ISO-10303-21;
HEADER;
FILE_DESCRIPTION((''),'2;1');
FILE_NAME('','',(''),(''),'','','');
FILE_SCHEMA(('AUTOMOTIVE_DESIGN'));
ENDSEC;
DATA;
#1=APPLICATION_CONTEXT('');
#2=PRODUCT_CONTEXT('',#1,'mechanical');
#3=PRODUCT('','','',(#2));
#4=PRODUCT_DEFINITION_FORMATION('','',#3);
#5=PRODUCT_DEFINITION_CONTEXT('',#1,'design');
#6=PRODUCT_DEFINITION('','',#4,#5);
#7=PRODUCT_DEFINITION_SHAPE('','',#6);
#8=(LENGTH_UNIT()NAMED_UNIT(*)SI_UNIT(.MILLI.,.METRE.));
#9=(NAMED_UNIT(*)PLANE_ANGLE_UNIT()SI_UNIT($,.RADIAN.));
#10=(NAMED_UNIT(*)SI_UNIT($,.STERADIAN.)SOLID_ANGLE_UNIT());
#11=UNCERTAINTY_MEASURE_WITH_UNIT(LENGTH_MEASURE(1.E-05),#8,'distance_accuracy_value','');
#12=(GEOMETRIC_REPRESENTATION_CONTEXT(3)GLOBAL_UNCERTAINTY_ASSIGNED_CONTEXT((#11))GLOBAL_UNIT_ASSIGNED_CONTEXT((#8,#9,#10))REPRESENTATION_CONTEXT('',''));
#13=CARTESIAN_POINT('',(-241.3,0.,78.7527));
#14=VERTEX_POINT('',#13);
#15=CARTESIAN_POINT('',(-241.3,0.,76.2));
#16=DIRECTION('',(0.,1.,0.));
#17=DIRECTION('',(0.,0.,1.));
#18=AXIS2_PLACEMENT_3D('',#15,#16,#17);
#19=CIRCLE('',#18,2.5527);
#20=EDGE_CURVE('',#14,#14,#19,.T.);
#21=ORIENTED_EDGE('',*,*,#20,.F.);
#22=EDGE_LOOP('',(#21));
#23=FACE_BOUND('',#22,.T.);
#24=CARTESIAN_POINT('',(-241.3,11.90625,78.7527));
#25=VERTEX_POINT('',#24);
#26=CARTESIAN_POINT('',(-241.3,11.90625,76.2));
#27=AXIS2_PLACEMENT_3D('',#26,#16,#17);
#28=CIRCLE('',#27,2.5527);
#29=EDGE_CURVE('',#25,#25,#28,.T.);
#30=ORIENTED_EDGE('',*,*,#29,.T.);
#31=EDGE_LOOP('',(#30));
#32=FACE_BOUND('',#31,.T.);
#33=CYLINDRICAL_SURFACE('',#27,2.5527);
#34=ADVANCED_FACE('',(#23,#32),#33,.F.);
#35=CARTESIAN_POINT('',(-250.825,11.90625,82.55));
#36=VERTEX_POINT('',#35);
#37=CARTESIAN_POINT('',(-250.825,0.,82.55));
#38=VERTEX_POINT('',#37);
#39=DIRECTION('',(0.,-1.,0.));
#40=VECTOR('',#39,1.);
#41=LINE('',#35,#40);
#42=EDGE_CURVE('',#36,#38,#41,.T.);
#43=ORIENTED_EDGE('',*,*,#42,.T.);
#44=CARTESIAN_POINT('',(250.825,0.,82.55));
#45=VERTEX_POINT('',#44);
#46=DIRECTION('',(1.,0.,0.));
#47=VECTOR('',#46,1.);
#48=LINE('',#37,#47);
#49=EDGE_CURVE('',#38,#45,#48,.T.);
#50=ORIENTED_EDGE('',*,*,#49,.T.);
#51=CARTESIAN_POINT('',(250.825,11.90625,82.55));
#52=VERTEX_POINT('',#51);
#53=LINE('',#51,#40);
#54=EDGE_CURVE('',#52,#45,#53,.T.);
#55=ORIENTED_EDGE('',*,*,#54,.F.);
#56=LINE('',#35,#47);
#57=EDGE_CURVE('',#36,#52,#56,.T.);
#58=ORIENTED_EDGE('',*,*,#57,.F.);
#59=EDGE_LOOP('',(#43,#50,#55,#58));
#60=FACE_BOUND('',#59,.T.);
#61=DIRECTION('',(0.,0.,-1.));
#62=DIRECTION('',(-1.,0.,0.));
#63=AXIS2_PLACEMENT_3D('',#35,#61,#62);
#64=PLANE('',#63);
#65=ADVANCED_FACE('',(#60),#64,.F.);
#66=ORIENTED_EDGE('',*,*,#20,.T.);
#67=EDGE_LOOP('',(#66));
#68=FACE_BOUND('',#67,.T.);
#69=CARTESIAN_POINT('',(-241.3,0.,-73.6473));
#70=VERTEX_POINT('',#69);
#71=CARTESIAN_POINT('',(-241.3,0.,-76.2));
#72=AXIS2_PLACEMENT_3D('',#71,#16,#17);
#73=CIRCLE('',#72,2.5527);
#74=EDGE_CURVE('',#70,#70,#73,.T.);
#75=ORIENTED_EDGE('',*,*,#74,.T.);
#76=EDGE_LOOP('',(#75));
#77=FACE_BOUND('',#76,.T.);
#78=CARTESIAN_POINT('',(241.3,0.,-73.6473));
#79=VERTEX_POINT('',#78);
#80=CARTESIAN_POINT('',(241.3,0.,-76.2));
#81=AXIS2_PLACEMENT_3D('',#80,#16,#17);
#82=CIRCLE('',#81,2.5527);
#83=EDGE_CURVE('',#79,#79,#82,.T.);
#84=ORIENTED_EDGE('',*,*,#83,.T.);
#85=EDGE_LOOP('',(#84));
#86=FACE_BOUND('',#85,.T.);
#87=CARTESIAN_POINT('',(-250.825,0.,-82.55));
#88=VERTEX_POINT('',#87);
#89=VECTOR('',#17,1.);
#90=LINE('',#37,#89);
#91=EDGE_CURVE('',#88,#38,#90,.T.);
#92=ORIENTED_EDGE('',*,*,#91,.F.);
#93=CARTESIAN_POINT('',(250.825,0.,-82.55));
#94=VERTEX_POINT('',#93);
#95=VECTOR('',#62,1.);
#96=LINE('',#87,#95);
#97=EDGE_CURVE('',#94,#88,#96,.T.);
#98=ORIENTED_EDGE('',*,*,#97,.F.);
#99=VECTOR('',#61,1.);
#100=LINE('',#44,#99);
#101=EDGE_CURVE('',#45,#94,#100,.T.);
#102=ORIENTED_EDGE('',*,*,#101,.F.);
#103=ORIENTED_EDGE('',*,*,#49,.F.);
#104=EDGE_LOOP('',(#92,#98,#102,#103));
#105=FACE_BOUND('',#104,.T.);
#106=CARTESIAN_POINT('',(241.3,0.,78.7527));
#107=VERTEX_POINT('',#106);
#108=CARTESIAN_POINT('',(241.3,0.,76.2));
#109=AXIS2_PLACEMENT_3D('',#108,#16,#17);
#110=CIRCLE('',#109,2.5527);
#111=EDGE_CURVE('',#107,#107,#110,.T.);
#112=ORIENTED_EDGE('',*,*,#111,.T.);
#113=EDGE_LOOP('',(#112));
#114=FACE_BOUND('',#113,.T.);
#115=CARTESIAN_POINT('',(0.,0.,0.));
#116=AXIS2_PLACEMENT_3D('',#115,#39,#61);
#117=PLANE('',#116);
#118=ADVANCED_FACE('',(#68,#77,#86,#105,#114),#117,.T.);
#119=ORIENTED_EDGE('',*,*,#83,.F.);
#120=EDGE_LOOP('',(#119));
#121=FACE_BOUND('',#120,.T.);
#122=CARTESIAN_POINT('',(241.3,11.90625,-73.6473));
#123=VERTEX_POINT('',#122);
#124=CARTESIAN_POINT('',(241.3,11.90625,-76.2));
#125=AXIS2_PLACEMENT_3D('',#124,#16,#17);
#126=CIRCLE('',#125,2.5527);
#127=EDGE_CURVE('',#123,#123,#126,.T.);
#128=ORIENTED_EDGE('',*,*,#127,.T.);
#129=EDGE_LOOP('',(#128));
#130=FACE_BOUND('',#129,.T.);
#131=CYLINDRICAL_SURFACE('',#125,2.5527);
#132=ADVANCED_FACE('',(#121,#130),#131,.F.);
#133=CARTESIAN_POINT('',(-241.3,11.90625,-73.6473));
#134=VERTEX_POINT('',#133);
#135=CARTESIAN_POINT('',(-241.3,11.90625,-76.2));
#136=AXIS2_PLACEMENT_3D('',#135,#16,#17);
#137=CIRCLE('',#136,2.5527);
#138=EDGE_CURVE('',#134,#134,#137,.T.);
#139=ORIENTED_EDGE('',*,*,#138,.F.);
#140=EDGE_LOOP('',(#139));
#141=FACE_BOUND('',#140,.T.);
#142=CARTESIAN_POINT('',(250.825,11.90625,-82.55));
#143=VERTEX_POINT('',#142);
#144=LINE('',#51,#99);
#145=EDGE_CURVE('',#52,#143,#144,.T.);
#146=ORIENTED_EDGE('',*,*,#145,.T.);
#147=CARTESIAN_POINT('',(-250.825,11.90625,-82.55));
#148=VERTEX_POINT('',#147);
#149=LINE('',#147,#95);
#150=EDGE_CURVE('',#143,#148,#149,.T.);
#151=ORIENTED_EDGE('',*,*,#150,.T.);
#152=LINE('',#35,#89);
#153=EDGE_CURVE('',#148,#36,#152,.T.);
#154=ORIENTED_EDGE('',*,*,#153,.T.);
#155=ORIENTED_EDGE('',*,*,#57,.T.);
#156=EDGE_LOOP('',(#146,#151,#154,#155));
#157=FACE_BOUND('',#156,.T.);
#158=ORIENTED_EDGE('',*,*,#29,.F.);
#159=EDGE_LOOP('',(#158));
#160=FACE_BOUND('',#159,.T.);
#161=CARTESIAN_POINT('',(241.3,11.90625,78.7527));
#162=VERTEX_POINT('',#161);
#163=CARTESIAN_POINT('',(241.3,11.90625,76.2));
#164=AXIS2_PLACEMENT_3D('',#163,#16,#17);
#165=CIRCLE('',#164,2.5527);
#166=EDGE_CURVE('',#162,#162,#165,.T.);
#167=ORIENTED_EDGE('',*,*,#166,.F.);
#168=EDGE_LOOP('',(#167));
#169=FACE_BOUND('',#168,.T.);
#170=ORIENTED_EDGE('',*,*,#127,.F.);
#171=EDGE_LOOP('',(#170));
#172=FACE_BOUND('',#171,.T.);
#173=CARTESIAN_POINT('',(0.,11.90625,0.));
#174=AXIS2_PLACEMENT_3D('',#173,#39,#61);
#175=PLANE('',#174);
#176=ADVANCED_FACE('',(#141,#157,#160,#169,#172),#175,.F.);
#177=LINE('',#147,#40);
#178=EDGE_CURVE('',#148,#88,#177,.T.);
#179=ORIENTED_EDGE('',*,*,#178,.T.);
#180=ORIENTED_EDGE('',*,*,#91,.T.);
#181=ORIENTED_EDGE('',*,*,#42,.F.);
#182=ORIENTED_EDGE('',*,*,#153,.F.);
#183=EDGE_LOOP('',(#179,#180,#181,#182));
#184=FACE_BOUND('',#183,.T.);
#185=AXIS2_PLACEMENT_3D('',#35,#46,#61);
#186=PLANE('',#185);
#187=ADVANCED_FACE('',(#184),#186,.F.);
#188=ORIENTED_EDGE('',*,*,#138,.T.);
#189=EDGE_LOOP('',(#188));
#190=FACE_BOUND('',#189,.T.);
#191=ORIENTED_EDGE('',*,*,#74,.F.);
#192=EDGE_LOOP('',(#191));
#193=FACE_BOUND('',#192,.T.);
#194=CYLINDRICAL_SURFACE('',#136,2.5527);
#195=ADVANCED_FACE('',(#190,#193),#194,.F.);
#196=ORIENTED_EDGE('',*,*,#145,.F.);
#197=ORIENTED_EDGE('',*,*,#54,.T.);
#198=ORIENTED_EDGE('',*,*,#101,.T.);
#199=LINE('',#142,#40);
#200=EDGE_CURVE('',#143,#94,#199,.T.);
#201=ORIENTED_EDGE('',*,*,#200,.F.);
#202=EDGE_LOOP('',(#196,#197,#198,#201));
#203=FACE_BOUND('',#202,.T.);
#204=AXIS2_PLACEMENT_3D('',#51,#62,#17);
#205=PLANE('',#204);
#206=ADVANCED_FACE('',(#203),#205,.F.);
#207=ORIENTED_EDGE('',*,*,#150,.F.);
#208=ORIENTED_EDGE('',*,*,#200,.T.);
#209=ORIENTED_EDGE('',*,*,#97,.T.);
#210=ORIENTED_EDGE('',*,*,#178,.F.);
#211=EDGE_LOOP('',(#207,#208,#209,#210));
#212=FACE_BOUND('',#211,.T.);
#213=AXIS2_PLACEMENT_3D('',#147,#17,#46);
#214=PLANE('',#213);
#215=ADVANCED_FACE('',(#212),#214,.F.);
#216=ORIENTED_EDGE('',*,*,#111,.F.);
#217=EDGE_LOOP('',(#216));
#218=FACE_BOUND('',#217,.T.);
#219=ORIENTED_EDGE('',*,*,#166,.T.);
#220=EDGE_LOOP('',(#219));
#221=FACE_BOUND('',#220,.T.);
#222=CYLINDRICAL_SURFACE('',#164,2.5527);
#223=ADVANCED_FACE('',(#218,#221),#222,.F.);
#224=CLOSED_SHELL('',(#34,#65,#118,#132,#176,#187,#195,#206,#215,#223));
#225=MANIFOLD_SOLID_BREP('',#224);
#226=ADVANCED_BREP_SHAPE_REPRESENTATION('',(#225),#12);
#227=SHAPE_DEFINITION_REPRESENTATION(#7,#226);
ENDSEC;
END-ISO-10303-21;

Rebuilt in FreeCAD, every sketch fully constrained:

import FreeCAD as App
import Part
import Sketcher
Q = App.Units.Quantity

doc = App.newDocument("Part")
body = doc.addObject("PartDesign::Body", "Body")

# Sketch on XZ plane
sketch1 = doc.addObject("Sketcher::SketchObject", "Sketch")
body.addObject(sketch1)
sketch1.AttachmentSupport = (doc.XZ_Plane, [""])
sketch1.MapMode = "FlatFace"
sketch1.addGeometry(Part.LineSegment(App.Vector(-251, -83, 0), App.Vector(-251, 83, 0)), False)
sketch1.addGeometry(Part.LineSegment(App.Vector(-251, 83, 0), App.Vector(251, 83, 0)), False)
sketch1.addGeometry(Part.LineSegment(App.Vector(251, 83, 0), App.Vector(251, -83, 0)), False)
sketch1.addGeometry(Part.LineSegment(App.Vector(251, -83, 0), App.Vector(-251, -83, 0)), False)
sketch1.addConstraint(Sketcher.Constraint("Coincident", 0, 2, 1, 1))
sketch1.addConstraint(Sketcher.Constraint("Coincident", 1, 2, 2, 1))
sketch1.addConstraint(Sketcher.Constraint("Coincident", 2, 2, 3, 1))
sketch1.addConstraint(Sketcher.Constraint("Coincident", 3, 2, 0, 1))
sketch1.addConstraint(Sketcher.Constraint("Vertical", 0))
sketch1.addConstraint(Sketcher.Constraint("Horizontal", 1))
sketch1.addConstraint(Sketcher.Constraint("Vertical", 2))
sketch1.addConstraint(Sketcher.Constraint("Horizontal", 3))
sketch1.addConstraint(Sketcher.Constraint("Symmetric", 0, 2, 2, 2, -1, 1))
sketch1.addConstraint(Sketcher.Constraint("DistanceY", 0, 1, 0, 2, Q("6.5 in")))
sketch1.addConstraint(Sketcher.Constraint("DistanceX", 1, 1, 1, 2, Q("19.75 in")))
pad1 = doc.addObject("PartDesign::Pad", "Pad")
body.addObject(pad1)
pad1.Profile = sketch1
pad1.Length = Q("0.46875 in")
pad1.Reversed = True

# Sketch on XZ plane
sketch2 = doc.addObject("Sketcher::SketchObject", "Sketch001")
body.addObject(sketch2)
sketch2.AttachmentSupport = (doc.XZ_Plane, [""])
sketch2.MapMode = "FlatFace"
sketch2.AttachmentOffset = App.Placement(App.Vector(0, 0, -0.46875 * 25.4), App.Rotation())
sketch2.addGeometry(Part.Circle(App.Vector(-241.3, -76.2, 0), App.Vector(0, 0, 1), 2.6), False)
sketch2.addGeometry(Part.Circle(App.Vector(241.3, -76.2, 0), App.Vector(0, 0, 1), 2.6), False)
sketch2.addGeometry(Part.Circle(App.Vector(241.3, 76.2, 0), App.Vector(0, 0, 1), 2.6), False)
sketch2.addGeometry(Part.Circle(App.Vector(-241.3, 76.2, 0), App.Vector(0, 0, 1), 2.6), False)
sketch2.addConstraint(Sketcher.Constraint("Equal", 0, 1))
sketch2.addConstraint(Sketcher.Constraint("Equal", 1, 2))
sketch2.addConstraint(Sketcher.Constraint("Equal", 2, 3))
sketch2.addConstraint(Sketcher.Constraint("Symmetric", 0, 3, 2, 3, -1, 1))
sketch2.addConstraint(Sketcher.Constraint("Symmetric", 1, 3, 3, 3, -1, 1))
sketch2.addConstraint(Sketcher.Constraint("Symmetric", 0, 3, 1, 3, -2))
sketch2.addConstraint(Sketcher.Constraint("Diameter", 0, Q("0.201 in")))
sketch2.addConstraint(Sketcher.Constraint("DistanceY", 0, 3, -1, 1, Q("3 in")))
sketch2.addConstraint(Sketcher.Constraint("DistanceX", 0, 3, 1, 3, Q("19 in")))
doc.recompute()
hole = doc.addObject("PartDesign::Hole", "Hole")
body.addObject(hole)
hole.Profile = sketch2
hole.ThreadType = "None"
hole.Diameter = Q("0.201 in")
hole.DepthType = "ThroughAll"
hole.Reversed = True

doc.recompute()
